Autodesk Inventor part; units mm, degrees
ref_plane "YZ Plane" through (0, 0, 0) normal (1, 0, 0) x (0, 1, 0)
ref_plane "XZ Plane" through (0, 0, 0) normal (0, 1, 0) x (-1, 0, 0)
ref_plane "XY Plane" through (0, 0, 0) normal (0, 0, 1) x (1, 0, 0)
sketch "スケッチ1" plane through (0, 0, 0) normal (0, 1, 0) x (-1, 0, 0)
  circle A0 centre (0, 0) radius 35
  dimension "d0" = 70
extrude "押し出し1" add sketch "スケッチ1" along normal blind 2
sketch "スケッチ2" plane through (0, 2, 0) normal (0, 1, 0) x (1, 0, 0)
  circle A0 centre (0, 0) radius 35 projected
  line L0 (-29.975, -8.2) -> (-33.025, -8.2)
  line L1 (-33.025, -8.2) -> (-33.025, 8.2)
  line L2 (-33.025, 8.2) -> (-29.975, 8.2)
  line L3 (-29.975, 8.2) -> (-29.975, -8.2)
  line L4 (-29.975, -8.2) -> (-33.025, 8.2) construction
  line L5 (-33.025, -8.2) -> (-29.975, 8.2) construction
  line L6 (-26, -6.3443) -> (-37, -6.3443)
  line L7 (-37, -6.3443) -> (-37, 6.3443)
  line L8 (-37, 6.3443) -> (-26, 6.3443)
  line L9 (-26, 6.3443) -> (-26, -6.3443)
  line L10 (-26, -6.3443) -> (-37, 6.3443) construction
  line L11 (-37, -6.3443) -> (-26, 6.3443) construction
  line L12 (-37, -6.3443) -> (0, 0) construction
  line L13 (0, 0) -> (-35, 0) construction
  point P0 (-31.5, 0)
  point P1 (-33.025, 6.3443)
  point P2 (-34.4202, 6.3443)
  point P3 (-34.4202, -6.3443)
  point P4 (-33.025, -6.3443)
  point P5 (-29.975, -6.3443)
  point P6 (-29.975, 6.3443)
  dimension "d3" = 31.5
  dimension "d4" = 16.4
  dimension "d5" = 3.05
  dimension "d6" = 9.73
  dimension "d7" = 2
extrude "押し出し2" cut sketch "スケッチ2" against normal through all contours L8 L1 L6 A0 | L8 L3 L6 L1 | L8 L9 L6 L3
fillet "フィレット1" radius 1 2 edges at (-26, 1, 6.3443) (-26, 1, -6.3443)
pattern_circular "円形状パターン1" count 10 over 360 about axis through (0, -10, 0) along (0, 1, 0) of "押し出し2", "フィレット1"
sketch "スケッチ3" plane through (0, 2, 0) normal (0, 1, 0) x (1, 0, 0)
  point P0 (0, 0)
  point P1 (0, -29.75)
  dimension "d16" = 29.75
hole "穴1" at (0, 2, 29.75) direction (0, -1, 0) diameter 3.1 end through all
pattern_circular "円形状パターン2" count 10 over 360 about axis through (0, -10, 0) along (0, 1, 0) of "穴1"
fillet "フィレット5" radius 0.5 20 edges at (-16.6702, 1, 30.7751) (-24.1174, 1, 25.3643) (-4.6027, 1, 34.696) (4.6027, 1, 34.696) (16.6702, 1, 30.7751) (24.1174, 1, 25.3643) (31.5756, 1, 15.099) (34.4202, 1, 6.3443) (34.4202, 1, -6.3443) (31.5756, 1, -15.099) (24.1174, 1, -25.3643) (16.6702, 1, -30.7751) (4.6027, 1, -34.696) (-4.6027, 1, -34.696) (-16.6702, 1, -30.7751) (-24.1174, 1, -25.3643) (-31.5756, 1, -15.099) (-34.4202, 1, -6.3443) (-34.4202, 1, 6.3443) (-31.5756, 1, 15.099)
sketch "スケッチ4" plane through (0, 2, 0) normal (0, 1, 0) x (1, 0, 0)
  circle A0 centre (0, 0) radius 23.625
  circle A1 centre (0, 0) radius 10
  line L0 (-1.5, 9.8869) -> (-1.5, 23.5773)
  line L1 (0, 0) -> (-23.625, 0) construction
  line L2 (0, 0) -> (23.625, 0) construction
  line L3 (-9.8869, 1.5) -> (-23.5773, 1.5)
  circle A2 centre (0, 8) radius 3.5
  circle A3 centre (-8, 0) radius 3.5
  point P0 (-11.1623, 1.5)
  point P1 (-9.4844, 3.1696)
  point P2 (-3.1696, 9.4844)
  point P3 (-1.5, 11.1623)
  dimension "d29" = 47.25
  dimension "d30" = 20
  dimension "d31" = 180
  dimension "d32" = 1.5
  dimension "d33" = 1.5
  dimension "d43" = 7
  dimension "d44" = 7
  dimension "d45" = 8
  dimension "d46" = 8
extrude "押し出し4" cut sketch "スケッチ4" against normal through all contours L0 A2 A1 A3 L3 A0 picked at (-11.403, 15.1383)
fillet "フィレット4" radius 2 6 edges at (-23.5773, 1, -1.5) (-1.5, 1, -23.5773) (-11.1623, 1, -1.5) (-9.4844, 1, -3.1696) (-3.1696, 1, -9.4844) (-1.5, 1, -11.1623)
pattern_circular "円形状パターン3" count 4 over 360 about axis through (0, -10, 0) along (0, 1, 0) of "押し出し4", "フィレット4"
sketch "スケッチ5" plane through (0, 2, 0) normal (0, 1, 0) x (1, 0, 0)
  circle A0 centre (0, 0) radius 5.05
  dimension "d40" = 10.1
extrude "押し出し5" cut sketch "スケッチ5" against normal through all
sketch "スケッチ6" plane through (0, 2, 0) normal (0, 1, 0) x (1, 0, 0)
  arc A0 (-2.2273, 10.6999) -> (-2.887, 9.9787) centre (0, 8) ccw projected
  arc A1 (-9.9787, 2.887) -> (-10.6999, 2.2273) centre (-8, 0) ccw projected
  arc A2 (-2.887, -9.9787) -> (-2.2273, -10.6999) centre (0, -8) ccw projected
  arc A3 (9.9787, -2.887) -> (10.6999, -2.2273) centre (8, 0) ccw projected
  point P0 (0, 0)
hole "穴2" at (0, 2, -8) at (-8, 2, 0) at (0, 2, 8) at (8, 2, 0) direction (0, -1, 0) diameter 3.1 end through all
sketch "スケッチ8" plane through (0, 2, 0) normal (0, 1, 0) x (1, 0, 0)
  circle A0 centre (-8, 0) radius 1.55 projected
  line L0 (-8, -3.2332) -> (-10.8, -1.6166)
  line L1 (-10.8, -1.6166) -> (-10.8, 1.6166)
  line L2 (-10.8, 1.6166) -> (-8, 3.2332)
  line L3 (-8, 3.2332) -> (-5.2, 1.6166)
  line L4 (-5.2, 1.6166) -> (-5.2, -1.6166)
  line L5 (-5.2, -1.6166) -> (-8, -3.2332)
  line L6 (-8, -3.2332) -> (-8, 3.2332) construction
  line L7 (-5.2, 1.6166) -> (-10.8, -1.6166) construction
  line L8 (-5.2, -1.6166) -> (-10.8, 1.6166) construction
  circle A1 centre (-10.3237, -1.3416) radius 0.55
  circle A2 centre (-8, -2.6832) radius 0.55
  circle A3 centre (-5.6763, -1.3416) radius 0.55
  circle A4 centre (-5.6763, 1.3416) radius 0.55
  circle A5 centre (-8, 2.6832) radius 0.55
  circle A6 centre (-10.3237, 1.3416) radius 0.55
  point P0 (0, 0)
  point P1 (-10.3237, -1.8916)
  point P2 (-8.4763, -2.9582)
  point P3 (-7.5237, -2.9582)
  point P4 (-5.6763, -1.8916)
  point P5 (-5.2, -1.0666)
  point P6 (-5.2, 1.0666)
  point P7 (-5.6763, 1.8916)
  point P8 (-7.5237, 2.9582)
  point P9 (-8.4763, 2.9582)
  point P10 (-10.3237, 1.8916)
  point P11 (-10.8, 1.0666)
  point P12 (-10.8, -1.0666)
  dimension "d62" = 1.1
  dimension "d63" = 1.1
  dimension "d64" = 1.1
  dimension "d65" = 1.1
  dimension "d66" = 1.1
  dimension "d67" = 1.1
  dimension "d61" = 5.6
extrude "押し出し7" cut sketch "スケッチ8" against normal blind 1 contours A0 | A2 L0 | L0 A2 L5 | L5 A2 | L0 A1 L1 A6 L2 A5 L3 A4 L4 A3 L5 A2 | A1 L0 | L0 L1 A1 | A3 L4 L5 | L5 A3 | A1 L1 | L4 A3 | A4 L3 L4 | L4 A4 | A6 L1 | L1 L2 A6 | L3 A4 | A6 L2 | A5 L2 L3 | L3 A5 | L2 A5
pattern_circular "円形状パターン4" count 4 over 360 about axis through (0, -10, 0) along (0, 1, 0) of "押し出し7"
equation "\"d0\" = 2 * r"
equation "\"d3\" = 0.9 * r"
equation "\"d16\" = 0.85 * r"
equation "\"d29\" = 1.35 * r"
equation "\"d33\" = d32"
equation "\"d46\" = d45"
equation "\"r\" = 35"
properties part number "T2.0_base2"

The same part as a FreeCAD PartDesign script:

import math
import FreeCAD as App
import Part
import Sketcher
from FreeCAD import Vector
Q = App.Units.Quantity


def edges_at(feature, points):
    """Names of the edges that pass closest to the given points."""
    edges = feature.Shape.Edges
    near = lambda p: min(range(len(edges)), key=lambda i: edges[i].distToShape(Part.Vertex(*p))[0])
    return sorted({f"Edge{near(p) + 1}" for p in points})

doc = App.newDocument("Part")
body = doc.addObject("PartDesign::Body", "Body")

sketch1 = doc.addObject("Sketcher::SketchObject", "Sketch")
body.addObject(sketch1)
sketch1.AttachmentSupport = (doc.XZ_Plane, [""])
sketch1.MapMode = "FlatFace"
sketch1.addGeometry(Part.Circle(Vector(0, 0, 0), Vector(0, 0, 1), 35), False)
sketch1.addConstraint(Sketcher.Constraint("Coincident", 0, 3, -1, 1))
sketch1.addConstraint(Sketcher.Constraint("Diameter", 0, Q("70 mm")))
pad1 = doc.addObject("PartDesign::Pad", "Pad")
body.addObject(pad1)
pad1.Profile = sketch1
pad1.Length = 2
pad1.Reversed = True

sketch2 = doc.addObject("Sketcher::SketchObject", "Sketch001")
body.addObject(sketch2)
sketch2.AttachmentSupport = (doc.XZ_Plane, [""])
sketch2.MapMode = "FlatFace"
sketch2.AttachmentOffset = App.Placement(Vector(0, 0, -2), App.Rotation())
sketch2.addGeometry(Part.ArcOfCircle(Part.Circle(Vector(0, 0, 0), Vector(0, 0, 1), 35), math.radians(169.556507), math.radians(190.443493)), False)
sketch2.addGeometry(Part.LineSegment(Vector(-34.420195, 6.3443, 0), Vector(-26, 6.3443, 0)), False)
sketch2.addGeometry(Part.LineSegment(Vector(-26, 6.3443, 0), Vector(-26, -6.3443, 0)), False)
sketch2.addGeometry(Part.LineSegment(Vector(-26, -6.3443, 0), Vector(-34.420195, -6.3443, 0)), False)
sketch2.addConstraint(Sketcher.Constraint("Coincident", 0, 1, 1, 1))
sketch2.addConstraint(Sketcher.Constraint("Coincident", 1, 2, 2, 1))
sketch2.addConstraint(Sketcher.Constraint("Coincident", 2, 2, 3, 1))
sketch2.addConstraint(Sketcher.Constraint("Coincident", 3, 2, 0, 2))
sketch2.addConstraint(Sketcher.Constraint("Horizontal", 1))
sketch2.addConstraint(Sketcher.Constraint("Vertical", 2))
sketch2.addConstraint(Sketcher.Constraint("Horizontal", 3))
sketch2.addConstraint(Sketcher.Constraint("Coincident", 0, 3, -1, 1))
sketch2.addConstraint(Sketcher.Constraint("Vertical", 0, 1, 3, 2))
sketch2.addConstraint(Sketcher.Constraint("Radius", 0, Q("35 mm")))
sketch2.addConstraint(Sketcher.Constraint("DistanceX", 1, 2, -1, 1, Q("26 mm")))
sketch2.addConstraint(Sketcher.Constraint("DistanceX", 1, 1, 1, 2, Q("8.4202 mm")))
pocket1 = doc.addObject("PartDesign::Pocket", "Pocket")
body.addObject(pocket1)
pocket1.Profile = sketch2
pocket1.Type = "ThroughAll"
pocket1.Reversed = True
doc.recompute()

fillet = doc.addObject("PartDesign::Fillet", "Fillet")
body.addObject(fillet)
fillet.Base = (pocket1, edges_at(pocket1, [(-26, 1, 6.344), (-26, 1, -6.344)]))
fillet.Radius = 1
doc.recompute()

polarpattern = doc.addObject("PartDesign::PolarPattern", "PolarPattern")
body.addObject(polarpattern)
polarpattern.Originals = [pocket1, fillet]
polarpattern.Axis = (doc.Y_Axis, [""])
polarpattern.Angle = 360
polarpattern.Occurrences = 10
body.Tip = polarpattern

sketch3 = doc.addObject("Sketcher::SketchObject", "Sketch002")
body.addObject(sketch3)
sketch3.AttachmentSupport = (doc.XZ_Plane, [""])
sketch3.MapMode = "FlatFace"
sketch3.AttachmentOffset = App.Placement(Vector(0, 0, -2), App.Rotation())
sketch3.addGeometry(Part.Circle(Vector(0, 29.75, 0), Vector(0, 0, 1), 1.55), False)
sketch3.addConstraint(Sketcher.Constraint("PointOnObject", 0, 3, -2))
sketch3.addConstraint(Sketcher.Constraint("Diameter", 0, Q("3.1 mm")))
sketch3.addConstraint(Sketcher.Constraint("DistanceY", -1, 1, 0, 3, Q("29.75 mm")))
doc.recompute()
hole = doc.addObject("PartDesign::Hole", "Hole")
body.addObject(hole)
hole.Profile = sketch3
hole.ThreadType = "None"
hole.Diameter = 3.1
hole.DepthType = "ThroughAll"
hole.Reversed = True
doc.recompute()

polarpattern2 = doc.addObject("PartDesign::PolarPattern", "PolarPattern001")
body.addObject(polarpattern2)
polarpattern2.Originals = [hole]
polarpattern2.Axis = (doc.Y_Axis, [""])
polarpattern2.Angle = 360
polarpattern2.Occurrences = 10
body.Tip = polarpattern2
doc.recompute()

fillet2 = doc.addObject("PartDesign::Fillet", "Fillet001")
body.addObject(fillet2)
fillet2.Base = (polarpattern2, edges_at(polarpattern2, [
    (-16.67, 1, 30.775),
    (-24.117, 1, 25.364),
    (-4.603, 1, 34.696),
    (4.603, 1, 34.696),
    (16.67, 1, 30.775),
    (24.117, 1, 25.364),
    (31.576, 1, 15.099),
    (34.42, 1, 6.344),
    (34.42, 1, -6.344),
    (31.576, 1, -15.099),
    (24.117, 1, -25.364),
    (16.67, 1, -30.775),
    (4.603, 1, -34.696),
    (-4.603, 1, -34.696),
    (-16.67, 1, -30.775),
    (-24.117, 1, -25.364),
    (-31.576, 1, -15.099),
    (-34.42, 1, -6.344),
    (-34.42, 1, 6.344),
    (-31.576, 1, 15.099),
]))
fillet2.Radius = 0.5

sketch4 = doc.addObject("Sketcher::SketchObject", "Sketch003")
body.addObject(sketch4)
sketch4.AttachmentSupport = (doc.XZ_Plane, [""])
sketch4.MapMode = "FlatFace"
sketch4.AttachmentOffset = App.Placement(Vector(0, 0, -2), App.Rotation())
sketch4.addGeometry(Part.LineSegment(Vector(-1.5, -11.162278, 0), Vector(-1.5, -23.5773, 0)), False)
sketch4.addGeometry(Part.ArcOfCircle(Part.Circle(Vector(0, 0, 0), Vector(0, 0, 1), 23.625), math.radians(-176.359719), math.radians(-93.640281)), False)
sketch4.addGeometry(Part.LineSegment(Vector(-23.5773, -1.5, 0), Vector(-11.162278, -1.5, 0)), False)
sketch4.addGeometry(Part.ArcOfCircle(Part.Circle(Vector(-8, 0, 0), Vector(0, 0, 1), 3.5), math.radians(-154.623066), math.radians(-115.094162)), False)
sketch4.addGeometry(Part.ArcOfCircle(Part.Circle(Vector(0, 0, 0), Vector(0, 0, 1), 10), math.radians(-161.520568), math.radians(-108.479432)), False)
sketch4.addGeometry(Part.ArcOfCircle(Part.Circle(Vector(0, -8, 0), Vector(0, 0, 1), 3.5), math.radians(-154.905838), math.radians(-115.376934)), False)
sketch4.addConstraint(Sketcher.Constraint("Coincident", 0, 2, 1, 2))
sketch4.addConstraint(Sketcher.Constraint("Coincident", 1, 1, 2, 1))
sketch4.addConstraint(Sketcher.Constraint("Coincident", 2, 2, 3, 1))
sketch4.addConstraint(Sketcher.Constraint("Coincident", 3, 2, 4, 1))
sketch4.addConstraint(Sketcher.Constraint("Coincident", 4, 2, 5, 1))
sketch4.addConstraint(Sketcher.Constraint("Coincident", 5, 2, 0, 1))
sketch4.addConstraint(Sketcher.Constraint("Vertical", 0))
sketch4.addConstraint(Sketcher.Constraint("Horizontal", 2))
sketch4.addConstraint(Sketcher.Constraint("Coincident", 1, 3, -1, 1))
sketch4.addConstraint(Sketcher.Constraint("Coincident", 4, 3, -1, 1))
sketch4.addConstraint(Sketcher.Constraint("Equal", 3, 5))
sketch4.addConstraint(Sketcher.Constraint("PointOnObject", 3, 3, -1))
sketch4.addConstraint(Sketcher.Constraint("PointOnObject", 5, 3, -2))
sketch4.addConstraint(Sketcher.Constraint("Equal", 2, 0))
sketch4.addConstraint(Sketcher.Constraint("Radius", 4, Q("10 mm")))
sketch4.addConstraint(Sketcher.Constraint("Radius", 3, Q("3.5 mm")))
sketch4.addConstraint(Sketcher.Constraint("DistanceX", 3, 3, -1, 1, Q("8 mm")))
sketch4.addConstraint(Sketcher.Constraint("DistanceY", 5, 3, -1, 1, Q("8 mm")))
sketch4.addConstraint(Sketcher.Constraint("Radius", 1, Q("23.625 mm")))
sketch4.addConstraint(Sketcher.Constraint("DistanceX", 0, 2, -1, 1, Q("1.5 mm")))
pocket2 = doc.addObject("PartDesign::Pocket", "Pocket001")
body.addObject(pocket2)
pocket2.Profile = sketch4
pocket2.Type = "ThroughAll"
pocket2.Reversed = True
doc.recompute()

fillet3 = doc.addObject("PartDesign::Fillet", "Fillet002")
body.addObject(fillet3)
fillet3.Base = (pocket2, edges_at(pocket2, [
    (-23.577, 1, -1.5),
    (-1.5, 1, -23.577),
    (-11.162, 1, -1.5),
    (-9.484, 1, -3.17),
    (-3.17, 1, -9.484),
    (-1.5, 1, -11.162),
]))
fillet3.Radius = 2
doc.recompute()

polarpattern3 = doc.addObject("PartDesign::PolarPattern", "PolarPattern002")
body.addObject(polarpattern3)
polarpattern3.Originals = [pocket2, fillet3]
polarpattern3.Axis = (doc.Y_Axis, [""])
polarpattern3.Angle = 360
polarpattern3.Occurrences = 4
body.Tip = polarpattern3

sketch5 = doc.addObject("Sketcher::SketchObject", "Sketch004")
body.addObject(sketch5)
sketch5.AttachmentSupport = (doc.XZ_Plane, [""])
sketch5.MapMode = "FlatFace"
sketch5.AttachmentOffset = App.Placement(Vector(0, 0, -2), App.Rotation())
sketch5.addGeometry(Part.Circle(Vector(0, 0, 0), Vector(0, 0, 1), 5.05), False)
sketch5.addConstraint(Sketcher.Constraint("Coincident", 0, 3, -1, 1))
sketch5.addConstraint(Sketcher.Constraint("Diameter", 0, Q("10.1 mm")))
pocket3 = doc.addObject("PartDesign::Pocket", "Pocket002")
body.addObject(pocket3)
pocket3.Profile = sketch5
pocket3.Type = "ThroughAll"
pocket3.Reversed = True

sketch6 = doc.addObject("Sketcher::SketchObject", "Sketch005")
body.addObject(sketch6)
sketch6.AttachmentSupport = (doc.XZ_Plane, [""])
sketch6.MapMode = "FlatFace"
sketch6.AttachmentOffset = App.Placement(Vector(0, 0, -2), App.Rotation())
sketch6.addGeometry(Part.Circle(Vector(0, -8, 0), Vector(0, 0, 1), 1.55), False)
sketch6.addGeometry(Part.Circle(Vector(-8, 0, 0), Vector(0, 0, 1), 1.55), False)
sketch6.addGeometry(Part.Circle(Vector(0, 8, 0), Vector(0, 0, 1), 1.55), False)
sketch6.addGeometry(Part.Circle(Vector(8, 0, 0), Vector(0, 0, 1), 1.55), False)
sketch6.addConstraint(Sketcher.Constraint("Equal", 0, 1))
sketch6.addConstraint(Sketcher.Constraint("Equal", 1, 2))
sketch6.addConstraint(Sketcher.Constraint("Equal", 2, 3))
sketch6.addConstraint(Sketcher.Constraint("Symmetric", 0, 3, 2, 3, -1, 1))
sketch6.addConstraint(Sketcher.Constraint("Symmetric", 1, 3, 3, 3, -1, 1))
sketch6.addConstraint(Sketcher.Constraint("PointOnObject", 0, 3, -2))
sketch6.addConstraint(Sketcher.Constraint("PointOnObject", 1, 3, -1))
sketch6.addConstraint(Sketcher.Constraint("Diameter", 0, Q("3.1 mm")))
sketch6.addConstraint(Sketcher.Constraint("DistanceY", 0, 3, -1, 1, Q("8 mm")))
sketch6.addConstraint(Sketcher.Constraint("DistanceX", 1, 3, -1, 1, Q("8 mm")))
doc.recompute()
hole2 = doc.addObject("PartDesign::Hole", "Hole001")
body.addObject(hole2)
hole2.Profile = sketch6
hole2.ThreadType = "None"
hole2.Diameter = 3.1
hole2.DepthType = "ThroughAll"
hole2.Reversed = True

sketch7 = doc.addObject("Sketcher::SketchObject", "Sketch006")
body.addObject(sketch7)
sketch7.AttachmentSupport = (doc.XZ_Plane, [""])
sketch7.MapMode = "FlatFace"
sketch7.AttachmentOffset = App.Placement(Vector(0, 0, -2), App.Rotation())
sketch7.addGeometry(Part.LineSegment(Vector(-10.323692, 1.8916, 0), Vector(-8.476317, 2.958195, 0)), False)
sketch7.addGeometry(Part.ArcOfCircle(Part.Circle(Vector(-8, 2.6832, 0), Vector(0, 0, 1), 0.55), math.radians(29.999409), math.radians(150.000591)), False)
sketch7.addGeometry(Part.LineSegment(Vector(-7.523683, 2.958195, 0), Vector(-5.676308, 1.8916, 0)), False)
sketch7.addGeometry(Part.ArcOfCircle(Part.Circle(Vector(-5.6763, 1.3416, 0), Vector(0, 0, 1), 0.55), math.radians(-30.002911), math.radians(90.000865)), False)
sketch7.addGeometry(Part.LineSegment(Vector(-5.2, 1.066576, 0), Vector(-5.2, -1.066576, 0)), False)
sketch7.addGeometry(Part.ArcOfCircle(Part.Circle(Vector(-5.6763, -1.3416, 0), Vector(0, 0, 1), 0.55), math.radians(-90.000865), math.radians(30.002911)), False)
sketch7.addGeometry(Part.LineSegment(Vector(-5.676308, -1.8916, 0), Vector(-7.523683, -2.958195, 0)), False)
sketch7.addGeometry(Part.ArcOfCircle(Part.Circle(Vector(-8, -2.6832, 0), Vector(0, 0, 1), 0.55), math.radians(-150.000591), math.radians(-29.999409)), False)
sketch7.addGeometry(Part.LineSegment(Vector(-8.476317, -2.958195, 0), Vector(-10.323692, -1.8916, 0)), False)
sketch7.addGeometry(Part.ArcOfCircle(Part.Circle(Vector(-10.3237, -1.3416, 0), Vector(0, 0, 1), 0.55), math.radians(149.997089), math.radians(270.000865)), False)
sketch7.addGeometry(Part.LineSegment(Vector(-10.8, -1.066576, 0), Vector(-10.8, 1.066576, 0)), False)
sketch7.addGeometry(Part.ArcOfCircle(Part.Circle(Vector(-10.3237, 1.3416, 0), Vector(0, 0, 1), 0.55), math.radians(89.999135), math.radians(210.002911)), False)
sketch7.addConstraint(Sketcher.Constraint("Coincident", 0, 2, 1, 2))
sketch7.addConstraint(Sketcher.Constraint("Coincident", 1, 1, 2, 1))
sketch7.addConstraint(Sketcher.Constraint("Coincident", 2, 2, 3, 2))
sketch7.addConstraint(Sketcher.Constraint("Coincident", 3, 1, 4, 1))
sketch7.addConstraint(Sketcher.Constraint("Coincident", 4, 2, 5, 2))
sketch7.addConstraint(Sketcher.Constraint("Coincident", 5, 1, 6, 1))
sketch7.addConstraint(Sketcher.Constraint("Coincident", 6, 2, 7, 2))
sketch7.addConstraint(Sketcher.Constraint("Coincident", 7, 1, 8, 1))
sketch7.addConstraint(Sketcher.Constraint("Coincident", 8, 2, 9, 2))
sketch7.addConstraint(Sketcher.Constraint("Coincident", 9, 1, 10, 1))
sketch7.addConstraint(Sketcher.Constraint("Coincident", 10, 2, 11, 2))
sketch7.addConstraint(Sketcher.Constraint("Coincident", 11, 1, 0, 1))
sketch7.addConstraint(Sketcher.Constraint("Vertical", 4))
sketch7.addConstraint(Sketcher.Constraint("Vertical", 10))
sketch7.addConstraint(Sketcher.Constraint("Equal", 1, 3))
sketch7.addConstraint(Sketcher.Constraint("Equal", 3, 5))
sketch7.addConstraint(Sketcher.Constraint("Equal", 5, 7))
sketch7.addConstraint(Sketcher.Constraint("Equal", 7, 9))
sketch7.addConstraint(Sketcher.Constraint("Equal", 9, 11))
sketch7.addConstraint(Sketcher.Constraint("Symmetric", 3, 3, 5, 3, -1))
sketch7.addConstraint(Sketcher.Constraint("Symmetric", 1, 3, 7, 3, -1))
sketch7.addConstraint(Sketcher.Constraint("Symmetric", 9, 3, 11, 3, -1))
sketch7.addConstraint(Sketcher.Constraint("Parallel", 0, 6))
sketch7.addConstraint(Sketcher.Constraint("Parallel", 2, 8))
sketch7.addConstraint(Sketcher.Constraint("Horizontal", 5, 3, 9, 3))
sketch7.addConstraint(Sketcher.Constraint("Horizontal", 0, 2, 1, 1))
sketch7.addConstraint(Sketcher.Constraint("Horizontal", 6, 2, 7, 1))
sketch7.addConstraint(Sketcher.Constraint("Horizontal", 4, 2, 9, 1))
sketch7.addConstraint(Sketcher.Constraint("Vertical", 5, 3, 2, 2))
sketch7.addConstraint(Sketcher.Constraint("Vertical", 2, 2, 5, 1))
sketch7.addConstraint(Sketcher.Constraint("Vertical", 1, 1, 6, 2))
sketch7.addConstraint(Sketcher.Constraint("Vertical", 11, 3, 8, 2))
sketch7.addConstraint(Sketcher.Constraint("Radius", 1, Q("0.55 mm")))
sketch7.addConstraint(Sketcher.Constraint("Angle", 0, Q("30.0003 deg")))
sketch7.addConstraint(Sketcher.Constraint("DistanceX", 1, 3, -1, 1, Q("8 mm")))
sketch7.addConstraint(Sketcher.Constraint("DistanceX", 3, 1, -1, 1, Q("5.2 mm")))
sketch7.addConstraint(Sketcher.Constraint("DistanceX", 0, 2, 3, 3, Q("2.8 mm")))
sketch7.addConstraint(Sketcher.Constraint("DistanceY", 4, 2, 4, 1, Q("2.1332 mm")))
sketch7.addConstraint(Sketcher.Constraint("DistanceY", 1, 3, 0, 2, Q("0.275 mm")))
pocket4 = doc.addObject("PartDesign::Pocket", "Pocket003")
body.addObject(pocket4)
pocket4.Profile = sketch7
pocket4.Length = 1
pocket4.Reversed = True
doc.recompute()

polarpattern4 = doc.addObject("PartDesign::PolarPattern", "PolarPattern003")
body.addObject(polarpattern4)
polarpattern4.Originals = [pocket4]
polarpattern4.Axis = (doc.Y_Axis, [""])
polarpattern4.Angle = 360
polarpattern4.Occurrences = 4
body.Tip = polarpattern4

doc.recompute()
